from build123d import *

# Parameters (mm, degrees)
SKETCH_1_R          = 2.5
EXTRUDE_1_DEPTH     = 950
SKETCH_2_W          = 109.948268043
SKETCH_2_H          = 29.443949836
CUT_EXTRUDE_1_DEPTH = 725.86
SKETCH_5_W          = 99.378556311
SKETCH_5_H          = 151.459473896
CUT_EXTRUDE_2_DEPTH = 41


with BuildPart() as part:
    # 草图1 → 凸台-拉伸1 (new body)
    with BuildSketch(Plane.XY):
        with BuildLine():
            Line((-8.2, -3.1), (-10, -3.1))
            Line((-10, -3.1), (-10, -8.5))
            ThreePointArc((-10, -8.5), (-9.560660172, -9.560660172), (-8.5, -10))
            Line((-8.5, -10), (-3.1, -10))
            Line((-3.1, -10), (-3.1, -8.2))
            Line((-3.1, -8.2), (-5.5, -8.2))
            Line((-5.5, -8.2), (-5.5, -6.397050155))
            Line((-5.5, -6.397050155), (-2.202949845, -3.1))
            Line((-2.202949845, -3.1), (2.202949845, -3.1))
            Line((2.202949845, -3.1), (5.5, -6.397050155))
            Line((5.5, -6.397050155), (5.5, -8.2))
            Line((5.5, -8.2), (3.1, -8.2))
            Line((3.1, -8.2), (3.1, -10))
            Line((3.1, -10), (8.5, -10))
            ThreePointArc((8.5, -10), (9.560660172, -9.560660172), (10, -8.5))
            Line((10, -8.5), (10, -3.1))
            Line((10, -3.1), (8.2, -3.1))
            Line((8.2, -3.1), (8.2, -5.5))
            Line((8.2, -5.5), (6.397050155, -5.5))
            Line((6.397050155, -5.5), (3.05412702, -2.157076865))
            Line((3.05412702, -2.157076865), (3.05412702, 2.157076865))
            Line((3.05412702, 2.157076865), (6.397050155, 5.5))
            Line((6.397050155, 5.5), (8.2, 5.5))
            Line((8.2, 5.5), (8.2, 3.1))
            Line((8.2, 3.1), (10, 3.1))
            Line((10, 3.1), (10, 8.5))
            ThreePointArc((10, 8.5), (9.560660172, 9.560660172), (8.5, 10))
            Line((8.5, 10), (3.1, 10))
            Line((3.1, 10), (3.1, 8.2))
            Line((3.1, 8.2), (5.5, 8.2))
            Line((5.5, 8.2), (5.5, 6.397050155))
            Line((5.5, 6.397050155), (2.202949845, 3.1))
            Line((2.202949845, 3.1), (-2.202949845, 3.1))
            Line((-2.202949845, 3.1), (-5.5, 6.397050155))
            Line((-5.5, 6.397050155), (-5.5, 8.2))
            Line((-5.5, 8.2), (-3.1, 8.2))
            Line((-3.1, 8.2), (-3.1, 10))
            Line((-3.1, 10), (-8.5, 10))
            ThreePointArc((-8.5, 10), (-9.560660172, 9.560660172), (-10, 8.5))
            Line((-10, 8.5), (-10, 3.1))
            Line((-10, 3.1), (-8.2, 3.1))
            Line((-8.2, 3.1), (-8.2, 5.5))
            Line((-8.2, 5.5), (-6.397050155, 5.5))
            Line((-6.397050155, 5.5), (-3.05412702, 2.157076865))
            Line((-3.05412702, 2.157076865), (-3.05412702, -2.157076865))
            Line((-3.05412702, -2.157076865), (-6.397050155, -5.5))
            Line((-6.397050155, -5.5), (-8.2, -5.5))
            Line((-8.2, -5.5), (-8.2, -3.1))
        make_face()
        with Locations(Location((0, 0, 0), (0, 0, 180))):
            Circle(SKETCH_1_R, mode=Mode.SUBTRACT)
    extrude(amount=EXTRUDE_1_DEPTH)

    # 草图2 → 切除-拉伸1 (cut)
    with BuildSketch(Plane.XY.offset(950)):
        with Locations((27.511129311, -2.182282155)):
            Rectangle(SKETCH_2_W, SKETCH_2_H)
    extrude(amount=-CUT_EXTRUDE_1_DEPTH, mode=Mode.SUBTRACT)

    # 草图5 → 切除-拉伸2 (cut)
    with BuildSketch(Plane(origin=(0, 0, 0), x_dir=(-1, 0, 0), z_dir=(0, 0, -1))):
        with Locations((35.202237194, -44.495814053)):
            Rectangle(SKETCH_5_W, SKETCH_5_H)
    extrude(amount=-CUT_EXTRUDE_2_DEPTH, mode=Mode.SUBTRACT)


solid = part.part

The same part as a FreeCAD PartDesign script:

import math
import FreeCAD as App
import Part
import Sketcher

V = App.Vector

doc = App.newDocument("Part")
body = doc.addObject("PartDesign::Body", "Body")

# Sketch on XY plane
sketch1 = body.newObject("Sketcher::SketchObject", "Sketch")
sketch1.AttachmentSupport = (doc.getObject("XY_Plane"), [""])
sketch1.MapMode = "FlatFace"
sketch1.addGeometry(Part.LineSegment(V(-8.2, -3.1, 0), V(-10, -3.1, 0)), False)
sketch1.addGeometry(Part.LineSegment(V(-10, -3.1, 0), V(-10, -8.5, 0)), False)
sketch1.addGeometry(Part.ArcOfCircle(Part.Circle(V(-8.5, -8.5, 0), V(0, 0, 1), 1.5), math.radians(180), math.radians(270)), False)
sketch1.addGeometry(Part.LineSegment(V(-8.5, -10, 0), V(-3.1, -10, 0)), False)
sketch1.addGeometry(Part.LineSegment(V(-3.1, -10, 0), V(-3.1, -8.2, 0)), False)
sketch1.addGeometry(Part.LineSegment(V(-3.1, -8.2, 0), V(-5.5, -8.2, 0)), False)
sketch1.addGeometry(Part.LineSegment(V(-5.5, -8.2, 0), V(-5.5, -6.4, 0)), False)
sketch1.addGeometry(Part.LineSegment(V(-5.5, -6.4, 0), V(-2.2, -3.1, 0)), False)
sketch1.addGeometry(Part.LineSegment(V(-2.2, -3.1, 0), V(2.2, -3.1, 0)), False)
sketch1.addGeometry(Part.LineSegment(V(2.2, -3.1, 0), V(5.5, -6.4, 0)), False)
sketch1.addGeometry(Part.LineSegment(V(5.5, -6.4, 0), V(5.5, -8.2, 0)), False)
sketch1.addGeometry(Part.LineSegment(V(5.5, -8.2, 0), V(3.1, -8.2, 0)), False)
sketch1.addGeometry(Part.LineSegment(V(3.1, -8.2, 0), V(3.1, -10, 0)), False)
sketch1.addGeometry(Part.LineSegment(V(3.1, -10, 0), V(8.5, -10, 0)), False)
sketch1.addGeometry(Part.ArcOfCircle(Part.Circle(V(8.5, -8.5, 0), V(0, 0, 1), 1.5), math.radians(-90), math.radians(0)), False)
sketch1.addGeometry(Part.LineSegment(V(10, -8.5, 0), V(10, -3.1, 0)), False)
sketch1.addGeometry(Part.LineSegment(V(10, -3.1, 0), V(8.2, -3.1, 0)), False)
sketch1.addGeometry(Part.LineSegment(V(8.2, -3.1, 0), V(8.2, -5.5, 0)), False)
sketch1.addGeometry(Part.LineSegment(V(8.2, -5.5, 0), V(6.4, -5.5, 0)), False)
sketch1.addGeometry(Part.LineSegment(V(6.4, -5.5, 0), V(3.1, -2.2, 0)), False)
sketch1.addGeometry(Part.LineSegment(V(3.1, -2.2, 0), V(3.1, 2.2, 0)), False)
sketch1.addGeometry(Part.LineSegment(V(3.1, 2.2, 0), V(6.4, 5.5, 0)), False)
sketch1.addGeometry(Part.LineSegment(V(6.4, 5.5, 0), V(8.2, 5.5, 0)), False)
sketch1.addGeometry(Part.LineSegment(V(8.2, 5.5, 0), V(8.2, 3.1, 0)), False)
sketch1.addGeometry(Part.LineSegment(V(8.2, 3.1, 0), V(10, 3.1, 0)), False)
sketch1.addGeometry(Part.LineSegment(V(10, 3.1, 0), V(10, 8.5, 0)), False)
sketch1.addGeometry(Part.ArcOfCircle(Part.Circle(V(8.5, 8.5, 0), V(0, 0, 1), 1.5), math.radians(0), math.radians(90)), False)
sketch1.addGeometry(Part.LineSegment(V(8.5, 10, 0), V(3.1, 10, 0)), False)
sketch1.addGeometry(Part.LineSegment(V(3.1, 10, 0), V(3.1, 8.2, 0)), False)
sketch1.addGeometry(Part.LineSegment(V(3.1, 8.2, 0), V(5.5, 8.2, 0)), False)
sketch1.addGeometry(Part.LineSegment(V(5.5, 8.2, 0), V(5.5, 6.4, 0)), False)
sketch1.addGeometry(Part.LineSegment(V(5.5, 6.4, 0), V(2.2, 3.1, 0)), False)
sketch1.addGeometry(Part.LineSegment(V(2.2, 3.1, 0), V(-2.2, 3.1, 0)), False)
sketch1.addGeometry(Part.LineSegment(V(-2.2, 3.1, 0), V(-5.5, 6.4, 0)), False)
sketch1.addGeometry(Part.LineSegment(V(-5.5, 6.4, 0), V(-5.5, 8.2, 0)), False)
sketch1.addGeometry(Part.LineSegment(V(-5.5, 8.2, 0), V(-3.1, 8.2, 0)), False)
sketch1.addGeometry(Part.LineSegment(V(-3.1, 8.2, 0), V(-3.1, 10, 0)), False)
sketch1.addGeometry(Part.LineSegment(V(-3.1, 10, 0), V(-8.5, 10, 0)), False)
sketch1.addGeometry(Part.ArcOfCircle(Part.Circle(V(-8.5, 8.5, 0), V(0, 0, 1), 1.5), math.radians(90), math.radians(180)), False)
sketch1.addGeometry(Part.LineSegment(V(-10, 8.5, 0), V(-10, 3.1, 0)), False)
sketch1.addGeometry(Part.LineSegment(V(-10, 3.1, 0), V(-8.2, 3.1, 0)), False)
sketch1.addGeometry(Part.LineSegment(V(-8.2, 3.1, 0), V(-8.2, 5.5, 0)), False)
sketch1.addGeometry(Part.LineSegment(V(-8.2, 5.5, 0), V(-6.4, 5.5, 0)), False)
sketch1.addGeometry(Part.LineSegment(V(-6.4, 5.5, 0), V(-3.1, 2.2, 0)), False)
sketch1.addGeometry(Part.LineSegment(V(-3.1, 2.2, 0), V(-3.1, -2.2, 0)), False)
sketch1.addGeometry(Part.LineSegment(V(-3.1, -2.2, 0), V(-6.4, -5.5, 0)), False)
sketch1.addGeometry(Part.LineSegment(V(-6.4, -5.5, 0), V(-8.2, -5.5, 0)), False)
sketch1.addGeometry(Part.LineSegment(V(-8.2, -5.5, 0), V(-8.2, -3.1, 0)), False)
sketch1.addGeometry(Part.Circle(V(0, 0, 0), V(0, 0, 1), 2.5), False)
sketch1.addConstraint(Sketcher.Constraint("Coincident", 0, 2, 1, 1))
sketch1.addConstraint(Sketcher.Constraint("Tangent", 1, 2, 2, 1))
sketch1.addConstraint(Sketcher.Constraint("Tangent", 2, 2, 3, 1))
sketch1.addConstraint(Sketcher.Constraint("Coincident", 3, 2, 4, 1))
sketch1.addConstraint(Sketcher.Constraint("Coincident", 4, 2, 5, 1))
sketch1.addConstraint(Sketcher.Constraint("Coincident", 5, 2, 6, 1))
sketch1.addConstraint(Sketcher.Constraint("Coincident", 6, 2, 7, 1))
sketch1.addConstraint(Sketcher.Constraint("Coincident", 7, 2, 8, 1))
sketch1.addConstraint(Sketcher.Constraint("Coincident", 8, 2, 9, 1))
sketch1.addConstraint(Sketcher.Constraint("Coincident", 9, 2, 10, 1))
sketch1.addConstraint(Sketcher.Constraint("Coincident", 10, 2, 11, 1))
sketch1.addConstraint(Sketcher.Constraint("Coincident", 11, 2, 12, 1))
sketch1.addConstraint(Sketcher.Constraint("Coincident", 12, 2, 13, 1))
sketch1.addConstraint(Sketcher.Constraint("Tangent", 13, 2, 14, 1))
sketch1.addConstraint(Sketcher.Constraint("Tangent", 14, 2, 15, 1))
sketch1.addConstraint(Sketcher.Constraint("Coincident", 15, 2, 16, 1))
sketch1.addConstraint(Sketcher.Constraint("Coincident", 16, 2, 17, 1))
sketch1.addConstraint(Sketcher.Constraint("Coincident", 17, 2, 18, 1))
sketch1.addConstraint(Sketcher.Constraint("Coincident", 18, 2, 19, 1))
sketch1.addConstraint(Sketcher.Constraint("Coincident", 19, 2, 20, 1))
sketch1.addConstraint(Sketcher.Constraint("Coincident", 20, 2, 21, 1))
sketch1.addConstraint(Sketcher.Constraint("Coincident", 21, 2, 22, 1))
sketch1.addConstraint(Sketcher.Constraint("Coincident", 22, 2, 23, 1))
sketch1.addConstraint(Sketcher.Constraint("Coincident", 23, 2, 24, 1))
sketch1.addConstraint(Sketcher.Constraint("Coincident", 24, 2, 25, 1))
sketch1.addConstraint(Sketcher.Constraint("Tangent", 25, 2, 26, 1))
sketch1.addConstraint(Sketcher.Constraint("Tangent", 26, 2, 27, 1))
sketch1.addConstraint(Sketcher.Constraint("Coincident", 27, 2, 28, 1))
sketch1.addConstraint(Sketcher.Constraint("Coincident", 28, 2, 29, 1))
sketch1.addConstraint(Sketcher.Constraint("Coincident", 29, 2, 30, 1))
sketch1.addConstraint(Sketcher.Constraint("Coincident", 30, 2, 31, 1))
sketch1.addConstraint(Sketcher.Constraint("Coincident", 31, 2, 32, 1))
sketch1.addConstraint(Sketcher.Constraint("Coincident", 32, 2, 33, 1))
sketch1.addConstraint(Sketcher.Constraint("Coincident", 33, 2, 34, 1))
sketch1.addConstraint(Sketcher.Constraint("Coincident", 34, 2, 35, 1))
sketch1.addConstraint(Sketcher.Constraint("Coincident", 35, 2, 36, 1))
sketch1.addConstraint(Sketcher.Constraint("Coincident", 36, 2, 37, 1))
sketch1.addConstraint(Sketcher.Constraint("Tangent", 37, 2, 38, 1))
sketch1.addConstraint(Sketcher.Constraint("Tangent", 38, 2, 39, 1))
sketch1.addConstraint(Sketcher.Constraint("Coincident", 39, 2, 40, 1))
sketch1.addConstraint(Sketcher.Constraint("Coincident", 40, 2, 41, 1))
sketch1.addConstraint(Sketcher.Constraint("Coincident", 41, 2, 42, 1))
sketch1.addConstraint(Sketcher.Constraint("Coincident", 42, 2, 43, 1))
sketch1.addConstraint(Sketcher.Constraint("Coincident", 43, 2, 44, 1))
sketch1.addConstraint(Sketcher.Constraint("Coincident", 44, 2, 45, 1))
sketch1.addConstraint(Sketcher.Constraint("Coincident", 45, 2, 46, 1))
sketch1.addConstraint(Sketcher.Constraint("Coincident", 46, 2, 47, 1))
sketch1.addConstraint(Sketcher.Constraint("Coincident", 47, 2, 0, 1))
sketch1.addConstraint(Sketcher.Constraint("Horizontal", 0))
sketch1.addConstraint(Sketcher.Constraint("Vertical", 1))
sketch1.addConstraint(Sketcher.Constraint("Horizontal", 3))
sketch1.addConstraint(Sketcher.Constraint("Vertical", 4))
sketch1.addConstraint(Sketcher.Constraint("Horizontal", 5))
sketch1.addConstraint(Sketcher.Constraint("Vertical", 6))
sketch1.addConstraint(Sketcher.Constraint("Horizontal", 8))
sketch1.addConstraint(Sketcher.Constraint("Vertical", 10))
sketch1.addConstraint(Sketcher.Constraint("Horizontal", 11))
sketch1.addConstraint(Sketcher.Constraint("Vertical", 12))
sketch1.addConstraint(Sketcher.Constraint("Horizontal", 13))
sketch1.addConstraint(Sketcher.Constraint("Vertical", 15))
sketch1.addConstraint(Sketcher.Constraint("Horizontal", 16))
sketch1.addConstraint(Sketcher.Constraint("Vertical", 17))
sketch1.addConstraint(Sketcher.Constraint("Horizontal", 18))
sketch1.addConstraint(Sketcher.Constraint("Vertical", 20))
sketch1.addConstraint(Sketcher.Constraint("Horizontal", 22))
sketch1.addConstraint(Sketcher.Constraint("Vertical", 23))
sketch1.addConstraint(Sketcher.Constraint("Horizontal", 24))
sketch1.addConstraint(Sketcher.Constraint("Vertical", 25))
sketch1.addConstraint(Sketcher.Constraint("Horizontal", 27))
sketch1.addConstraint(Sketcher.Constraint("Vertical", 28))
sketch1.addConstraint(Sketcher.Constraint("Horizontal", 29))
sketch1.addConstraint(Sketcher.Constraint("Vertical", 30))
sketch1.addConstraint(Sketcher.Constraint("Horizontal", 32))
sketch1.addConstraint(Sketcher.Constraint("Vertical", 34))
sketch1.addConstraint(Sketcher.Constraint("Horizontal", 35))
sketch1.addConstraint(Sketcher.Constraint("Vertical", 36))
sketch1.addConstraint(Sketcher.Constraint("Horizontal", 37))
sketch1.addConstraint(Sketcher.Constraint("Vertical", 39))
sketch1.addConstraint(Sketcher.Constraint("Horizontal", 40))
sketch1.addConstraint(Sketcher.Constraint("Vertical", 41))
sketch1.addConstraint(Sketcher.Constraint("Horizontal", 42))
sketch1.addConstraint(Sketcher.Constraint("Vertical", 44))
sketch1.addConstraint(Sketcher.Constraint("Horizontal", 46))
sketch1.addConstraint(Sketcher.Constraint("Vertical", 47))
sketch1.addConstraint(Sketcher.Constraint("Coincident", 48, 3, -1, 1))
sketch1.addConstraint(Sketcher.Constraint("Equal", 2, 14))
sketch1.addConstraint(Sketcher.Constraint("Equal", 14, 26))
sketch1.addConstraint(Sketcher.Constraint("Equal", 26, 38))
sketch1.addConstraint(Sketcher.Constraint("Symmetric", 2, 3, 26, 3, -1, 1))
sketch1.addConstraint(Sketcher.Constraint("Symmetric", 14, 3, 38, 3, -1, 1))
sketch1.addConstraint(Sketcher.Constraint("Symmetric", 4, 2, 28, 2, -1, 1))
sketch1.addConstraint(Sketcher.Constraint("Symmetric", 6, 2, 30, 2, -1, 1))
sketch1.addConstraint(Sketcher.Constraint("Symmetric", 7, 2, 31, 2, -1, 1))
sketch1.addConstraint(Sketcher.Constraint("Symmetric", 9, 2, 33, 2, -1, 1))
sketch1.addConstraint(Sketcher.Constraint("Symmetric", 11, 2, 35, 2, -1, 1))
sketch1.addConstraint(Sketcher.Constraint("Symmetric", 16, 2, 40, 2, -1, 1))
sketch1.addConstraint(Sketcher.Constraint("Symmetric", 18, 2, 42, 2, -1, 1))
sketch1.addConstraint(Sketcher.Constraint("Symmetric", 19, 2, 43, 2, -1, 1))
sketch1.addConstraint(Sketcher.Constraint("Symmetric", 21, 2, 45, 2, -1, 1))
sketch1.addConstraint(Sketcher.Constraint("Symmetric", 23, 2, 47, 2, -1, 1))
sketch1.addConstraint(Sketcher.Constraint("Symmetric", 2, 3, 14, 3, -2))
sketch1.addConstraint(Sketcher.Constraint("Symmetric", 6, 2, 9, 2, -2))
sketch1.addConstraint(Sketcher.Constraint("Symmetric", 4, 2, 11, 2, -2))
sketch1.addConstraint(Sketcher.Constraint("Symmetric", 23, 2, 40, 2, -2))
sketch1.addConstraint(Sketcher.Constraint("Symmetric", 21, 2, 42, 2, -2))
sketch1.addConstraint(Sketcher.Constraint("Perpendicular", 7, 9))
sketch1.addConstraint(Sketcher.Constraint("Parallel", 9, 19))
sketch1.addConstraint(Sketcher.Constraint("Perpendicular", 19, 21))
sketch1.addConstraint(Sketcher.Constraint("Perpendicular", 31, 33))
sketch1.addConstraint(Sketcher.Constraint("Perpendicular", 43, 45))
sketch1.addConstraint(Sketcher.Constraint("Horizontal", 0, 2, 7, 2))
sketch1.addConstraint(Sketcher.Constraint("Horizontal", 20, 2, 43, 2))
sketch1.addConstraint(Sketcher.Constraint("Equal", 37, 1))
sketch1.addConstraint(Sketcher.Constraint("Equal", 40, 4))
sketch1.addConstraint(Sketcher.Constraint("Equal", 46, 6))
sketch1.addConstraint(Sketcher.Constraint("Equal", 35, 17))
sketch1.addConstraint(Sketcher.Constraint("Diameter", 48, 5.0))
sketch1.addConstraint(Sketcher.Constraint("Radius", 2, 1.5))
sketch1.addConstraint(Sketcher.Constraint("DistanceX", 0, 2, 0, 1, 1.8))
sketch1.addConstraint(Sketcher.Constraint("DistanceX", 3, 1, 3, 2, 5.4))
sketch1.addConstraint(Sketcher.Constraint("DistanceX", 5, 2, 5, 1, 2.4))
sketch1.addConstraint(Sketcher.Constraint("DistanceX", 0, 2, -1, 1, 10.0))
sketch1.addConstraint(Sketcher.Constraint("DistanceY", 2, 2, -1, 1, 10.0))
sketch1.addConstraint(Sketcher.Constraint("DistanceX", 8, 1, 8, 2, 4.4059))
sketch1.addConstraint(Sketcher.Constraint("DistanceY", 20, 1, 20, 2, 4.314154))
pad1 = body.newObject("PartDesign::Pad", "Pad")
pad1.Profile = sketch1
pad1.Length = 950

# Sketch on XY plane
sketch2 = body.newObject("Sketcher::SketchObject", "Sketch001")
sketch2.AttachmentSupport = (doc.getObject("XY_Plane"), [""])
sketch2.MapMode = "FlatFace"
sketch2.AttachmentOffset = App.Placement(V(0, 0, 950), App.Rotation())
sketch2.addGeometry(Part.LineSegment(V(-27, 13, 0), V(-27, -17, 0)), False)
sketch2.addGeometry(Part.LineSegment(V(-27, -17, 0), V(82, -17, 0)), False)
sketch2.addGeometry(Part.LineSegment(V(82, -17, 0), V(82, 13, 0)), False)
sketch2.addGeometry(Part.LineSegment(V(82, 13, 0), V(-27, 13, 0)), False)
sketch2.addConstraint(Sketcher.Constraint("Coincident", 0, 2, 1, 1))
sketch2.addConstraint(Sketcher.Constraint("Coincident", 1, 2, 2, 1))
sketch2.addConstraint(Sketcher.Constraint("Coincident", 2, 2, 3, 1))
sketch2.addConstraint(Sketcher.Constraint("Coincident", 3, 2, 0, 1))
sketch2.addConstraint(Sketcher.Constraint("Vertical", 0))
sketch2.addConstraint(Sketcher.Constraint("Horizontal", 1))
sketch2.addConstraint(Sketcher.Constraint("Vertical", 2))
sketch2.addConstraint(Sketcher.Constraint("Horizontal", 3))
sketch2.addConstraint(Sketcher.Constraint("DistanceX", 1, 1, 1, 2, 109.948268))
sketch2.addConstraint(Sketcher.Constraint("DistanceY", 0, 2, 0, 1, 29.44395))
sketch2.addConstraint(Sketcher.Constraint("DistanceX", 0, 2, -1, 1, 27.463005))
sketch2.addConstraint(Sketcher.Constraint("DistanceY", 0, 2, -1, 1, 16.904257))
pocket1 = body.newObject("PartDesign::Pocket", "Pocket")
pocket1.Profile = sketch2
pocket1.Length = 725.86

# Sketch on XY plane
sketch3 = body.newObject("Sketcher::SketchObject", "Sketch002")
sketch3.AttachmentSupport = (doc.getObject("XY_Plane"), [""])
sketch3.MapMode = "FlatFace"
sketch3.addGeometry(Part.LineSegment(V(14, 31, 0), V(14, -120, 0)), False)
sketch3.addGeometry(Part.LineSegment(V(14, -120, 0), V(-85, -120, 0)), False)
sketch3.addGeometry(Part.LineSegment(V(-85, -120, 0), V(-85, 31, 0)), False)
sketch3.addGeometry(Part.LineSegment(V(-85, 31, 0), V(14, 31, 0)), False)
sketch3.addConstraint(Sketcher.Constraint("Coincident", 0, 2, 1, 1))
sketch3.addConstraint(Sketcher.Constraint("Coincident", 1, 2, 2, 1))
sketch3.addConstraint(Sketcher.Constraint("Coincident", 2, 2, 3, 1))
sketch3.addConstraint(Sketcher.Constraint("Coincident", 3, 2, 0, 1))
sketch3.addConstraint(Sketcher.Constraint("Vertical", 0))
sketch3.addConstraint(Sketcher.Constraint("Horizontal", 1))
sketch3.addConstraint(Sketcher.Constraint("Vertical", 2))
sketch3.addConstraint(Sketcher.Constraint("Horizontal", 3))
sketch3.addConstraint(Sketcher.Constraint("DistanceX", 1, 2, 1, 1, 99.378556))
sketch3.addConstraint(Sketcher.Constraint("DistanceY", 0, 2, 0, 1, 151.459474))
sketch3.addConstraint(Sketcher.Constraint("DistanceX", -1, 1, 0, 2, 14.487041))
sketch3.addConstraint(Sketcher.Constraint("DistanceY", 0, 2, -1, 1, 120.225551))
pocket2 = body.newObject("PartDesign::Pocket", "Pocket001")
pocket2.Profile = sketch3
pocket2.Length = 41
pocket2.Reversed = True

doc.recompute()
